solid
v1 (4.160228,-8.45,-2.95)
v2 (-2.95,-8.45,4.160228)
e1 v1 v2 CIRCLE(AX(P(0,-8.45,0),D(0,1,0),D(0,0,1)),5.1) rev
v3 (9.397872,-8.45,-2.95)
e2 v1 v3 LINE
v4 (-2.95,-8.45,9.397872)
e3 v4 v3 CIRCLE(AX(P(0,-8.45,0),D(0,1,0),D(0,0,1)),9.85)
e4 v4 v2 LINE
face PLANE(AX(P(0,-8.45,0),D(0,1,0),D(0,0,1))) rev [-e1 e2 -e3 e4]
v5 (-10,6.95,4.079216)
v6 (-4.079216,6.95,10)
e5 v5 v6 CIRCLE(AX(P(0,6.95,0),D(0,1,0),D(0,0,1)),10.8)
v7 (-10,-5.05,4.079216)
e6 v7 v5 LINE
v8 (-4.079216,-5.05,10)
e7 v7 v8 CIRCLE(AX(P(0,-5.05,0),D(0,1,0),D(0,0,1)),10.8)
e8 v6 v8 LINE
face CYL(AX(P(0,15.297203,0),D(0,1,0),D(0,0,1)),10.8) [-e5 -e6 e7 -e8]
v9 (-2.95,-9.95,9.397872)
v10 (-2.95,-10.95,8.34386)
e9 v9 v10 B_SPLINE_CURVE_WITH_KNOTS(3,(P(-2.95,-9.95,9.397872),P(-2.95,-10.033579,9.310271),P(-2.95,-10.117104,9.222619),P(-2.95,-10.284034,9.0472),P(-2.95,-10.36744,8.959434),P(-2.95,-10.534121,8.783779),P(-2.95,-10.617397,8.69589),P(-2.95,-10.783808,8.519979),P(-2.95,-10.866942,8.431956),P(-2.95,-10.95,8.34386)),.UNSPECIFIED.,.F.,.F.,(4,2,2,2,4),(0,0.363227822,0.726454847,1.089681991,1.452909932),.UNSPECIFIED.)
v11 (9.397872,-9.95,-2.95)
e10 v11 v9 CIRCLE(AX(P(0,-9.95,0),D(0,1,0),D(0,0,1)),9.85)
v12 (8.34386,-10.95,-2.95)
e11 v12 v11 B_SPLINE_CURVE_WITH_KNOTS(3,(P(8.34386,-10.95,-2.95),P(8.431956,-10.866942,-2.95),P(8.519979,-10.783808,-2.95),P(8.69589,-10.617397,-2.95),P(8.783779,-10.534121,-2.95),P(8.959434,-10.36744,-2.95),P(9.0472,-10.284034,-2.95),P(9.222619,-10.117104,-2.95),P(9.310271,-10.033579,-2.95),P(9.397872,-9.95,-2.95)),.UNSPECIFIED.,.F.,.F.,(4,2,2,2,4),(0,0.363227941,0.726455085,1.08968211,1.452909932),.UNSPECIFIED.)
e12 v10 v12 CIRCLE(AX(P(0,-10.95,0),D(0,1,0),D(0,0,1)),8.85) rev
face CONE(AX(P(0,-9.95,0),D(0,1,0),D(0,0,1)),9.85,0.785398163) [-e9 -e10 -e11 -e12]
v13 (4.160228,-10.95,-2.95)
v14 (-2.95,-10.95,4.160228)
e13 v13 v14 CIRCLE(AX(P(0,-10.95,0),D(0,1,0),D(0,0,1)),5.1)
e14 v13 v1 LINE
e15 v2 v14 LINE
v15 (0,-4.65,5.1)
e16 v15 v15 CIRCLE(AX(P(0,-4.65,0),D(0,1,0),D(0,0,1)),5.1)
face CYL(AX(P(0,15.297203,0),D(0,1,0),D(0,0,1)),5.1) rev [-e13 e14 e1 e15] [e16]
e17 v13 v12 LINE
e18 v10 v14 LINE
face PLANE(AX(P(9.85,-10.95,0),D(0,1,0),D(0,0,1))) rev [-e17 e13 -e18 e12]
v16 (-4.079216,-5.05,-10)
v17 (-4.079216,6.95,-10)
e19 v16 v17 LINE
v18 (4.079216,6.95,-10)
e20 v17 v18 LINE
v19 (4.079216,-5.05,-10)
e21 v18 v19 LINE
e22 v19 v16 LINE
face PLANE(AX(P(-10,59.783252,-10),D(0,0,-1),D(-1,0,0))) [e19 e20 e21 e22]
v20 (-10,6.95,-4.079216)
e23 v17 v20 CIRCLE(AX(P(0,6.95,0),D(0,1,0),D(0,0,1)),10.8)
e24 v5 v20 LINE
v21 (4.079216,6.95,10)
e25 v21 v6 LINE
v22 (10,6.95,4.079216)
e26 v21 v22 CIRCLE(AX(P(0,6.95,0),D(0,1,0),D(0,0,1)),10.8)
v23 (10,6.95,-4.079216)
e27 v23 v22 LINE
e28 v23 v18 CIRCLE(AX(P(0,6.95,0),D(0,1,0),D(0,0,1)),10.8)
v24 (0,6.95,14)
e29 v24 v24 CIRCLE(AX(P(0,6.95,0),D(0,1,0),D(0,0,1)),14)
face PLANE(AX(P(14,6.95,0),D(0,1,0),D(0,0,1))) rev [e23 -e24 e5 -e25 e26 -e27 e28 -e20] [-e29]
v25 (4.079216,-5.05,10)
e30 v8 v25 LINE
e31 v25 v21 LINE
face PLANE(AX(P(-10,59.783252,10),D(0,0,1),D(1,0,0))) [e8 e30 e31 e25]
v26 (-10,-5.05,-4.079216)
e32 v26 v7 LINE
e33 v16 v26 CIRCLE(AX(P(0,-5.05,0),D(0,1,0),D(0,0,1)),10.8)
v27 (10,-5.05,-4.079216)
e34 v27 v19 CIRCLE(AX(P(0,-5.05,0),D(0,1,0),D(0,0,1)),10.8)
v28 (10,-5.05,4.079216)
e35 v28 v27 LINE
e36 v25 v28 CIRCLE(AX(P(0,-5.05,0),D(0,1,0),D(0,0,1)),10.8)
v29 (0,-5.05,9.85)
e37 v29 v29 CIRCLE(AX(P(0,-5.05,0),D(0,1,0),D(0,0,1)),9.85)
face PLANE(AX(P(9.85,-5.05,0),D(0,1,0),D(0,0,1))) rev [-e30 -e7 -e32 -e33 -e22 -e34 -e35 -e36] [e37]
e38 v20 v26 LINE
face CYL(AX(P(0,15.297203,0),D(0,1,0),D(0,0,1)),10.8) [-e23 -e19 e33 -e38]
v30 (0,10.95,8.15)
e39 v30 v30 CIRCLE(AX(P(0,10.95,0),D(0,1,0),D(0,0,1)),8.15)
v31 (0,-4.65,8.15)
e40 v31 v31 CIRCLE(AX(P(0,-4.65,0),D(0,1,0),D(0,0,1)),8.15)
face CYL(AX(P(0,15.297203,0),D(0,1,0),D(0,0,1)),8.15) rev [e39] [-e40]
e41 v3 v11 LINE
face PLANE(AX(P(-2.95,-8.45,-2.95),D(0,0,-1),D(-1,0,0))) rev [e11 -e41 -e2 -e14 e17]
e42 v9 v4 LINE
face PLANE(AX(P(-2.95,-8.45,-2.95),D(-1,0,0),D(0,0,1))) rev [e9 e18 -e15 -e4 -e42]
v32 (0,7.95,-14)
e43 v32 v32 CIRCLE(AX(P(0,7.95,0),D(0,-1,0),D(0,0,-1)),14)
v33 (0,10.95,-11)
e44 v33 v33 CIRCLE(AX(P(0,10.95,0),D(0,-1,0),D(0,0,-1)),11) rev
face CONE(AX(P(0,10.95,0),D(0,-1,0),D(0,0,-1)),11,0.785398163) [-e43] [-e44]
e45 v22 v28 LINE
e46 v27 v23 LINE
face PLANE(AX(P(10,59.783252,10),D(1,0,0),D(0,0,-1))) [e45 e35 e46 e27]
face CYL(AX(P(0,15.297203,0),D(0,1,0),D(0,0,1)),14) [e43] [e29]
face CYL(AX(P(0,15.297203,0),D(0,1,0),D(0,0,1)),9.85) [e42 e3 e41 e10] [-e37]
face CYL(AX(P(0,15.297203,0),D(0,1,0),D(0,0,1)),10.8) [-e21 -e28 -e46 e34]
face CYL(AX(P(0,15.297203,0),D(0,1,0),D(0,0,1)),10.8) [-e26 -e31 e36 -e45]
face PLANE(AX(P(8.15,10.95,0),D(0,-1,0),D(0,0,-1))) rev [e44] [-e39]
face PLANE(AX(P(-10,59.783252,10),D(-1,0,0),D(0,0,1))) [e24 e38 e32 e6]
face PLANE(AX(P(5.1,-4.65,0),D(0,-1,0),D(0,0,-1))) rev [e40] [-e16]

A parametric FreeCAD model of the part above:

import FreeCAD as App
import Part
import Sketcher
Q = App.Units.Quantity


def edges_at(feature, points):
    """Names of the edges that pass closest to the given points."""
    edges = feature.Shape.Edges
    near = lambda p: min(range(len(edges)), key=lambda i: edges[i].distToShape(Part.Vertex(*p))[0])
    return sorted({f"Edge{near(p) + 1}" for p in points})

doc = App.newDocument("Part")
body = doc.addObject("PartDesign::Body", "Body")

# Sketch on XY plane
sketch1 = doc.addObject("Sketcher::SketchObject", "Sketch")
body.addObject(sketch1)
sketch1.AttachmentSupport = (doc.XY_Plane, [""])
sketch1.MapMode = "FlatFace"
sketch1.addGeometry([
    Part.LineSegment(App.Vector(8.15, 10.95, 0), App.Vector(8.15, -4.65, 0)),  # 0
    Part.LineSegment(App.Vector(8.15, -4.65, 0), App.Vector(5.1, -4.65, 0)),  # 1
    Part.LineSegment(App.Vector(5.1, -4.65, 0), App.Vector(5.1, -10.95, 0)),  # 2
    Part.LineSegment(App.Vector(5.1, -10.95, 0), App.Vector(9.85, -10.95, 0)),  # 3
    Part.LineSegment(App.Vector(9.85, -10.95, 0), App.Vector(9.85, -5.05, 0)),  # 4
    Part.LineSegment(App.Vector(9.85, -5.05, 0), App.Vector(10.8, -5.05, 0)),  # 5
    Part.LineSegment(App.Vector(10.8, -5.05, 0), App.Vector(10.8, 6.95, 0)),  # 6
    Part.LineSegment(App.Vector(10.8, 6.95, 0), App.Vector(14, 6.95, 0)),  # 7
    Part.LineSegment(App.Vector(14, 6.95, 0), App.Vector(14, 10.95, 0)),  # 8
    Part.LineSegment(App.Vector(14, 10.95, 0), App.Vector(8.15, 10.95, 0)),  # 9
], False)
sketch1.addConstraint([
    Sketcher.Constraint("Coincident", 0, 2, 1, 1),
    Sketcher.Constraint("Coincident", 1, 2, 2, 1),
    Sketcher.Constraint("Coincident", 2, 2, 3, 1),
    Sketcher.Constraint("Coincident", 3, 2, 4, 1),
    Sketcher.Constraint("Coincident", 4, 2, 5, 1),
    Sketcher.Constraint("Coincident", 5, 2, 6, 1),
    Sketcher.Constraint("Coincident", 6, 2, 7, 1),
    Sketcher.Constraint("Coincident", 7, 2, 8, 1),
    Sketcher.Constraint("Coincident", 8, 2, 9, 1),
    Sketcher.Constraint("Coincident", 9, 2, 0, 1),
    Sketcher.Constraint("Vertical", 0),
    Sketcher.Constraint("Horizontal", 1),
    Sketcher.Constraint("Vertical", 2),
    Sketcher.Constraint("Horizontal", 3),
    Sketcher.Constraint("Vertical", 4),
    Sketcher.Constraint("Horizontal", 5),
    Sketcher.Constraint("Vertical", 6),
    Sketcher.Constraint("Horizontal", 7),
    Sketcher.Constraint("Vertical", 8),
    Sketcher.Constraint("Horizontal", 9),
    Sketcher.Constraint("DistanceY", 6, 1, 6, 2, Q("12 mm")),
    Sketcher.Constraint("DistanceY", 8, 1, 8, 2, Q("4 mm")),
    Sketcher.Constraint("DistanceX", 7, 1, 7, 2, Q("3.2 mm")),
    Sketcher.Constraint("DistanceY", 0, 2, 0, 1, Q("15.6 mm")),
    Sketcher.Constraint("DistanceY", 2, 2, 2, 1, Q("6.3 mm")),
    Sketcher.Constraint("DistanceX", -1, 1, 7, 2, Q("14 mm")),
    Sketcher.Constraint("DistanceX", 1, 2, 1, 1, Q("3.05 mm")),
    Sketcher.Constraint("DistanceX", 3, 1, 3, 2, Q("4.75 mm")),
    Sketcher.Constraint("DistanceX", 5, 1, 5, 2, Q("0.95 mm")),
    Sketcher.Constraint("DistanceY", 0, 2, -1, 1, Q("4.65 mm")),
])
revolution = doc.addObject("PartDesign::Revolution", "Revolution")
body.addObject(revolution)
revolution.Profile = sketch1
revolution.ReferenceAxis = (sketch1, ["V_Axis"])
revolution.Angle = 360
doc.recompute()

chamfer = doc.addObject("PartDesign::Chamfer", "Chamfer")
body.addObject(chamfer)
chamfer.Base = (revolution, edges_at(revolution, [(0, 10.95, -14)]))
chamfer.Size = 3

# Sketch on XZ plane
sketch2 = doc.addObject("Sketcher::SketchObject", "Sketch001")
body.addObject(sketch2)
sketch2.AttachmentSupport = (doc.XZ_Plane, [""])
sketch2.MapMode = "FlatFace"
sketch2.AttachmentOffset = App.Placement(App.Vector(0, 0, 10.95), App.Rotation())
sketch2.addGeometry([
    Part.Circle(App.Vector(0, 0, 0), App.Vector(0, 0, 1), 18.679376),  # 0
    Part.LineSegment(App.Vector(10, -10, 0), App.Vector(-10, -10, 0)),  # 1
    Part.LineSegment(App.Vector(-10, -10, 0), App.Vector(-10, 10, 0)),  # 2
    Part.LineSegment(App.Vector(-10, 10, 0), App.Vector(10, 10, 0)),  # 3
    Part.LineSegment(App.Vector(10, 10, 0), App.Vector(10, -10, 0)),  # 4
], False)
sketch2.addConstraint([
    Sketcher.Constraint("Coincident", 1, 2, 2, 1),
    Sketcher.Constraint("Coincident", 2, 2, 3, 1),
    Sketcher.Constraint("Coincident", 3, 2, 4, 1),
    Sketcher.Constraint("Coincident", 4, 2, 1, 1),
    Sketcher.Constraint("Horizontal", 1),
    Sketcher.Constraint("Vertical", 2),
    Sketcher.Constraint("Horizontal", 3),
    Sketcher.Constraint("Vertical", 4),
    Sketcher.Constraint("Coincident", 0, 3, -1, 1),
    Sketcher.Constraint("Symmetric", 1, 2, 3, 2, -1, 1),
    Sketcher.Constraint("Equal", 3, 2),
    Sketcher.Constraint("DistanceX", 1, 2, 1, 1, Q("20 mm")),
    Sketcher.Constraint("Diameter", 0, Q("37.358751 mm")),
])
pocket1 = doc.addObject("PartDesign::Pocket", "Pocket")
body.addObject(pocket1)
pocket1.Profile = sketch2
pocket1.Length = 17.9

# Sketch on XZ plane
sketch3 = doc.addObject("Sketcher::SketchObject", "Sketch002")
body.addObject(sketch3)
sketch3.AttachmentSupport = (doc.XZ_Plane, [""])
sketch3.MapMode = "FlatFace"
sketch3.AttachmentOffset = App.Placement(App.Vector(0, 0, 10.95), App.Rotation())
sketch3.addGeometry([
    Part.LineSegment(App.Vector(-2.95, 17.05, 0), App.Vector(-2.95, -2.95, 0)),
    Part.LineSegment(App.Vector(-2.95, -2.95, 0), App.Vector(17.05, -2.95, 0)),
    Part.LineSegment(App.Vector(17.05, -2.95, 0), App.Vector(17.05, 17.05, 0)),
    Part.LineSegment(App.Vector(17.05, 17.05, 0), App.Vector(-2.95, 17.05, 0)),
], False)
sketch3.addConstraint([
    Sketcher.Constraint("Coincident", 0, 2, 1, 1),
    Sketcher.Constraint("Coincident", 1, 2, 2, 1),
    Sketcher.Constraint("Coincident", 2, 2, 3, 1),
    Sketcher.Constraint("Coincident", 3, 2, 0, 1),
    Sketcher.Constraint("Vertical", 0),
    Sketcher.Constraint("Horizontal", 1),
    Sketcher.Constraint("Vertical", 2),
    Sketcher.Constraint("Horizontal", 3),
    Sketcher.Constraint("Equal", 3, 0),
    Sketcher.Constraint("DistanceX", 1, 1, 1, 2, Q("20 mm")),
    Sketcher.Constraint("DistanceX", 0, 2, -1, 1, Q("2.95 mm")),
    Sketcher.Constraint("DistanceY", 0, 2, -1, 1, Q("2.95 mm")),
])
pocket2 = doc.addObject("PartDesign::Pocket", "Pocket001")
body.addObject(pocket2)
pocket2.Profile = sketch3
pocket2.Length = 2.5
doc.recompute()

chamfer2 = doc.addObject("PartDesign::Chamfer", "Chamfer001")
body.addObject(chamfer2)
chamfer2.Base = (pocket2, edges_at(pocket2, [(-6.965, -10.95, -6.965)]))
chamfer2.Size = 1

doc.recompute()
